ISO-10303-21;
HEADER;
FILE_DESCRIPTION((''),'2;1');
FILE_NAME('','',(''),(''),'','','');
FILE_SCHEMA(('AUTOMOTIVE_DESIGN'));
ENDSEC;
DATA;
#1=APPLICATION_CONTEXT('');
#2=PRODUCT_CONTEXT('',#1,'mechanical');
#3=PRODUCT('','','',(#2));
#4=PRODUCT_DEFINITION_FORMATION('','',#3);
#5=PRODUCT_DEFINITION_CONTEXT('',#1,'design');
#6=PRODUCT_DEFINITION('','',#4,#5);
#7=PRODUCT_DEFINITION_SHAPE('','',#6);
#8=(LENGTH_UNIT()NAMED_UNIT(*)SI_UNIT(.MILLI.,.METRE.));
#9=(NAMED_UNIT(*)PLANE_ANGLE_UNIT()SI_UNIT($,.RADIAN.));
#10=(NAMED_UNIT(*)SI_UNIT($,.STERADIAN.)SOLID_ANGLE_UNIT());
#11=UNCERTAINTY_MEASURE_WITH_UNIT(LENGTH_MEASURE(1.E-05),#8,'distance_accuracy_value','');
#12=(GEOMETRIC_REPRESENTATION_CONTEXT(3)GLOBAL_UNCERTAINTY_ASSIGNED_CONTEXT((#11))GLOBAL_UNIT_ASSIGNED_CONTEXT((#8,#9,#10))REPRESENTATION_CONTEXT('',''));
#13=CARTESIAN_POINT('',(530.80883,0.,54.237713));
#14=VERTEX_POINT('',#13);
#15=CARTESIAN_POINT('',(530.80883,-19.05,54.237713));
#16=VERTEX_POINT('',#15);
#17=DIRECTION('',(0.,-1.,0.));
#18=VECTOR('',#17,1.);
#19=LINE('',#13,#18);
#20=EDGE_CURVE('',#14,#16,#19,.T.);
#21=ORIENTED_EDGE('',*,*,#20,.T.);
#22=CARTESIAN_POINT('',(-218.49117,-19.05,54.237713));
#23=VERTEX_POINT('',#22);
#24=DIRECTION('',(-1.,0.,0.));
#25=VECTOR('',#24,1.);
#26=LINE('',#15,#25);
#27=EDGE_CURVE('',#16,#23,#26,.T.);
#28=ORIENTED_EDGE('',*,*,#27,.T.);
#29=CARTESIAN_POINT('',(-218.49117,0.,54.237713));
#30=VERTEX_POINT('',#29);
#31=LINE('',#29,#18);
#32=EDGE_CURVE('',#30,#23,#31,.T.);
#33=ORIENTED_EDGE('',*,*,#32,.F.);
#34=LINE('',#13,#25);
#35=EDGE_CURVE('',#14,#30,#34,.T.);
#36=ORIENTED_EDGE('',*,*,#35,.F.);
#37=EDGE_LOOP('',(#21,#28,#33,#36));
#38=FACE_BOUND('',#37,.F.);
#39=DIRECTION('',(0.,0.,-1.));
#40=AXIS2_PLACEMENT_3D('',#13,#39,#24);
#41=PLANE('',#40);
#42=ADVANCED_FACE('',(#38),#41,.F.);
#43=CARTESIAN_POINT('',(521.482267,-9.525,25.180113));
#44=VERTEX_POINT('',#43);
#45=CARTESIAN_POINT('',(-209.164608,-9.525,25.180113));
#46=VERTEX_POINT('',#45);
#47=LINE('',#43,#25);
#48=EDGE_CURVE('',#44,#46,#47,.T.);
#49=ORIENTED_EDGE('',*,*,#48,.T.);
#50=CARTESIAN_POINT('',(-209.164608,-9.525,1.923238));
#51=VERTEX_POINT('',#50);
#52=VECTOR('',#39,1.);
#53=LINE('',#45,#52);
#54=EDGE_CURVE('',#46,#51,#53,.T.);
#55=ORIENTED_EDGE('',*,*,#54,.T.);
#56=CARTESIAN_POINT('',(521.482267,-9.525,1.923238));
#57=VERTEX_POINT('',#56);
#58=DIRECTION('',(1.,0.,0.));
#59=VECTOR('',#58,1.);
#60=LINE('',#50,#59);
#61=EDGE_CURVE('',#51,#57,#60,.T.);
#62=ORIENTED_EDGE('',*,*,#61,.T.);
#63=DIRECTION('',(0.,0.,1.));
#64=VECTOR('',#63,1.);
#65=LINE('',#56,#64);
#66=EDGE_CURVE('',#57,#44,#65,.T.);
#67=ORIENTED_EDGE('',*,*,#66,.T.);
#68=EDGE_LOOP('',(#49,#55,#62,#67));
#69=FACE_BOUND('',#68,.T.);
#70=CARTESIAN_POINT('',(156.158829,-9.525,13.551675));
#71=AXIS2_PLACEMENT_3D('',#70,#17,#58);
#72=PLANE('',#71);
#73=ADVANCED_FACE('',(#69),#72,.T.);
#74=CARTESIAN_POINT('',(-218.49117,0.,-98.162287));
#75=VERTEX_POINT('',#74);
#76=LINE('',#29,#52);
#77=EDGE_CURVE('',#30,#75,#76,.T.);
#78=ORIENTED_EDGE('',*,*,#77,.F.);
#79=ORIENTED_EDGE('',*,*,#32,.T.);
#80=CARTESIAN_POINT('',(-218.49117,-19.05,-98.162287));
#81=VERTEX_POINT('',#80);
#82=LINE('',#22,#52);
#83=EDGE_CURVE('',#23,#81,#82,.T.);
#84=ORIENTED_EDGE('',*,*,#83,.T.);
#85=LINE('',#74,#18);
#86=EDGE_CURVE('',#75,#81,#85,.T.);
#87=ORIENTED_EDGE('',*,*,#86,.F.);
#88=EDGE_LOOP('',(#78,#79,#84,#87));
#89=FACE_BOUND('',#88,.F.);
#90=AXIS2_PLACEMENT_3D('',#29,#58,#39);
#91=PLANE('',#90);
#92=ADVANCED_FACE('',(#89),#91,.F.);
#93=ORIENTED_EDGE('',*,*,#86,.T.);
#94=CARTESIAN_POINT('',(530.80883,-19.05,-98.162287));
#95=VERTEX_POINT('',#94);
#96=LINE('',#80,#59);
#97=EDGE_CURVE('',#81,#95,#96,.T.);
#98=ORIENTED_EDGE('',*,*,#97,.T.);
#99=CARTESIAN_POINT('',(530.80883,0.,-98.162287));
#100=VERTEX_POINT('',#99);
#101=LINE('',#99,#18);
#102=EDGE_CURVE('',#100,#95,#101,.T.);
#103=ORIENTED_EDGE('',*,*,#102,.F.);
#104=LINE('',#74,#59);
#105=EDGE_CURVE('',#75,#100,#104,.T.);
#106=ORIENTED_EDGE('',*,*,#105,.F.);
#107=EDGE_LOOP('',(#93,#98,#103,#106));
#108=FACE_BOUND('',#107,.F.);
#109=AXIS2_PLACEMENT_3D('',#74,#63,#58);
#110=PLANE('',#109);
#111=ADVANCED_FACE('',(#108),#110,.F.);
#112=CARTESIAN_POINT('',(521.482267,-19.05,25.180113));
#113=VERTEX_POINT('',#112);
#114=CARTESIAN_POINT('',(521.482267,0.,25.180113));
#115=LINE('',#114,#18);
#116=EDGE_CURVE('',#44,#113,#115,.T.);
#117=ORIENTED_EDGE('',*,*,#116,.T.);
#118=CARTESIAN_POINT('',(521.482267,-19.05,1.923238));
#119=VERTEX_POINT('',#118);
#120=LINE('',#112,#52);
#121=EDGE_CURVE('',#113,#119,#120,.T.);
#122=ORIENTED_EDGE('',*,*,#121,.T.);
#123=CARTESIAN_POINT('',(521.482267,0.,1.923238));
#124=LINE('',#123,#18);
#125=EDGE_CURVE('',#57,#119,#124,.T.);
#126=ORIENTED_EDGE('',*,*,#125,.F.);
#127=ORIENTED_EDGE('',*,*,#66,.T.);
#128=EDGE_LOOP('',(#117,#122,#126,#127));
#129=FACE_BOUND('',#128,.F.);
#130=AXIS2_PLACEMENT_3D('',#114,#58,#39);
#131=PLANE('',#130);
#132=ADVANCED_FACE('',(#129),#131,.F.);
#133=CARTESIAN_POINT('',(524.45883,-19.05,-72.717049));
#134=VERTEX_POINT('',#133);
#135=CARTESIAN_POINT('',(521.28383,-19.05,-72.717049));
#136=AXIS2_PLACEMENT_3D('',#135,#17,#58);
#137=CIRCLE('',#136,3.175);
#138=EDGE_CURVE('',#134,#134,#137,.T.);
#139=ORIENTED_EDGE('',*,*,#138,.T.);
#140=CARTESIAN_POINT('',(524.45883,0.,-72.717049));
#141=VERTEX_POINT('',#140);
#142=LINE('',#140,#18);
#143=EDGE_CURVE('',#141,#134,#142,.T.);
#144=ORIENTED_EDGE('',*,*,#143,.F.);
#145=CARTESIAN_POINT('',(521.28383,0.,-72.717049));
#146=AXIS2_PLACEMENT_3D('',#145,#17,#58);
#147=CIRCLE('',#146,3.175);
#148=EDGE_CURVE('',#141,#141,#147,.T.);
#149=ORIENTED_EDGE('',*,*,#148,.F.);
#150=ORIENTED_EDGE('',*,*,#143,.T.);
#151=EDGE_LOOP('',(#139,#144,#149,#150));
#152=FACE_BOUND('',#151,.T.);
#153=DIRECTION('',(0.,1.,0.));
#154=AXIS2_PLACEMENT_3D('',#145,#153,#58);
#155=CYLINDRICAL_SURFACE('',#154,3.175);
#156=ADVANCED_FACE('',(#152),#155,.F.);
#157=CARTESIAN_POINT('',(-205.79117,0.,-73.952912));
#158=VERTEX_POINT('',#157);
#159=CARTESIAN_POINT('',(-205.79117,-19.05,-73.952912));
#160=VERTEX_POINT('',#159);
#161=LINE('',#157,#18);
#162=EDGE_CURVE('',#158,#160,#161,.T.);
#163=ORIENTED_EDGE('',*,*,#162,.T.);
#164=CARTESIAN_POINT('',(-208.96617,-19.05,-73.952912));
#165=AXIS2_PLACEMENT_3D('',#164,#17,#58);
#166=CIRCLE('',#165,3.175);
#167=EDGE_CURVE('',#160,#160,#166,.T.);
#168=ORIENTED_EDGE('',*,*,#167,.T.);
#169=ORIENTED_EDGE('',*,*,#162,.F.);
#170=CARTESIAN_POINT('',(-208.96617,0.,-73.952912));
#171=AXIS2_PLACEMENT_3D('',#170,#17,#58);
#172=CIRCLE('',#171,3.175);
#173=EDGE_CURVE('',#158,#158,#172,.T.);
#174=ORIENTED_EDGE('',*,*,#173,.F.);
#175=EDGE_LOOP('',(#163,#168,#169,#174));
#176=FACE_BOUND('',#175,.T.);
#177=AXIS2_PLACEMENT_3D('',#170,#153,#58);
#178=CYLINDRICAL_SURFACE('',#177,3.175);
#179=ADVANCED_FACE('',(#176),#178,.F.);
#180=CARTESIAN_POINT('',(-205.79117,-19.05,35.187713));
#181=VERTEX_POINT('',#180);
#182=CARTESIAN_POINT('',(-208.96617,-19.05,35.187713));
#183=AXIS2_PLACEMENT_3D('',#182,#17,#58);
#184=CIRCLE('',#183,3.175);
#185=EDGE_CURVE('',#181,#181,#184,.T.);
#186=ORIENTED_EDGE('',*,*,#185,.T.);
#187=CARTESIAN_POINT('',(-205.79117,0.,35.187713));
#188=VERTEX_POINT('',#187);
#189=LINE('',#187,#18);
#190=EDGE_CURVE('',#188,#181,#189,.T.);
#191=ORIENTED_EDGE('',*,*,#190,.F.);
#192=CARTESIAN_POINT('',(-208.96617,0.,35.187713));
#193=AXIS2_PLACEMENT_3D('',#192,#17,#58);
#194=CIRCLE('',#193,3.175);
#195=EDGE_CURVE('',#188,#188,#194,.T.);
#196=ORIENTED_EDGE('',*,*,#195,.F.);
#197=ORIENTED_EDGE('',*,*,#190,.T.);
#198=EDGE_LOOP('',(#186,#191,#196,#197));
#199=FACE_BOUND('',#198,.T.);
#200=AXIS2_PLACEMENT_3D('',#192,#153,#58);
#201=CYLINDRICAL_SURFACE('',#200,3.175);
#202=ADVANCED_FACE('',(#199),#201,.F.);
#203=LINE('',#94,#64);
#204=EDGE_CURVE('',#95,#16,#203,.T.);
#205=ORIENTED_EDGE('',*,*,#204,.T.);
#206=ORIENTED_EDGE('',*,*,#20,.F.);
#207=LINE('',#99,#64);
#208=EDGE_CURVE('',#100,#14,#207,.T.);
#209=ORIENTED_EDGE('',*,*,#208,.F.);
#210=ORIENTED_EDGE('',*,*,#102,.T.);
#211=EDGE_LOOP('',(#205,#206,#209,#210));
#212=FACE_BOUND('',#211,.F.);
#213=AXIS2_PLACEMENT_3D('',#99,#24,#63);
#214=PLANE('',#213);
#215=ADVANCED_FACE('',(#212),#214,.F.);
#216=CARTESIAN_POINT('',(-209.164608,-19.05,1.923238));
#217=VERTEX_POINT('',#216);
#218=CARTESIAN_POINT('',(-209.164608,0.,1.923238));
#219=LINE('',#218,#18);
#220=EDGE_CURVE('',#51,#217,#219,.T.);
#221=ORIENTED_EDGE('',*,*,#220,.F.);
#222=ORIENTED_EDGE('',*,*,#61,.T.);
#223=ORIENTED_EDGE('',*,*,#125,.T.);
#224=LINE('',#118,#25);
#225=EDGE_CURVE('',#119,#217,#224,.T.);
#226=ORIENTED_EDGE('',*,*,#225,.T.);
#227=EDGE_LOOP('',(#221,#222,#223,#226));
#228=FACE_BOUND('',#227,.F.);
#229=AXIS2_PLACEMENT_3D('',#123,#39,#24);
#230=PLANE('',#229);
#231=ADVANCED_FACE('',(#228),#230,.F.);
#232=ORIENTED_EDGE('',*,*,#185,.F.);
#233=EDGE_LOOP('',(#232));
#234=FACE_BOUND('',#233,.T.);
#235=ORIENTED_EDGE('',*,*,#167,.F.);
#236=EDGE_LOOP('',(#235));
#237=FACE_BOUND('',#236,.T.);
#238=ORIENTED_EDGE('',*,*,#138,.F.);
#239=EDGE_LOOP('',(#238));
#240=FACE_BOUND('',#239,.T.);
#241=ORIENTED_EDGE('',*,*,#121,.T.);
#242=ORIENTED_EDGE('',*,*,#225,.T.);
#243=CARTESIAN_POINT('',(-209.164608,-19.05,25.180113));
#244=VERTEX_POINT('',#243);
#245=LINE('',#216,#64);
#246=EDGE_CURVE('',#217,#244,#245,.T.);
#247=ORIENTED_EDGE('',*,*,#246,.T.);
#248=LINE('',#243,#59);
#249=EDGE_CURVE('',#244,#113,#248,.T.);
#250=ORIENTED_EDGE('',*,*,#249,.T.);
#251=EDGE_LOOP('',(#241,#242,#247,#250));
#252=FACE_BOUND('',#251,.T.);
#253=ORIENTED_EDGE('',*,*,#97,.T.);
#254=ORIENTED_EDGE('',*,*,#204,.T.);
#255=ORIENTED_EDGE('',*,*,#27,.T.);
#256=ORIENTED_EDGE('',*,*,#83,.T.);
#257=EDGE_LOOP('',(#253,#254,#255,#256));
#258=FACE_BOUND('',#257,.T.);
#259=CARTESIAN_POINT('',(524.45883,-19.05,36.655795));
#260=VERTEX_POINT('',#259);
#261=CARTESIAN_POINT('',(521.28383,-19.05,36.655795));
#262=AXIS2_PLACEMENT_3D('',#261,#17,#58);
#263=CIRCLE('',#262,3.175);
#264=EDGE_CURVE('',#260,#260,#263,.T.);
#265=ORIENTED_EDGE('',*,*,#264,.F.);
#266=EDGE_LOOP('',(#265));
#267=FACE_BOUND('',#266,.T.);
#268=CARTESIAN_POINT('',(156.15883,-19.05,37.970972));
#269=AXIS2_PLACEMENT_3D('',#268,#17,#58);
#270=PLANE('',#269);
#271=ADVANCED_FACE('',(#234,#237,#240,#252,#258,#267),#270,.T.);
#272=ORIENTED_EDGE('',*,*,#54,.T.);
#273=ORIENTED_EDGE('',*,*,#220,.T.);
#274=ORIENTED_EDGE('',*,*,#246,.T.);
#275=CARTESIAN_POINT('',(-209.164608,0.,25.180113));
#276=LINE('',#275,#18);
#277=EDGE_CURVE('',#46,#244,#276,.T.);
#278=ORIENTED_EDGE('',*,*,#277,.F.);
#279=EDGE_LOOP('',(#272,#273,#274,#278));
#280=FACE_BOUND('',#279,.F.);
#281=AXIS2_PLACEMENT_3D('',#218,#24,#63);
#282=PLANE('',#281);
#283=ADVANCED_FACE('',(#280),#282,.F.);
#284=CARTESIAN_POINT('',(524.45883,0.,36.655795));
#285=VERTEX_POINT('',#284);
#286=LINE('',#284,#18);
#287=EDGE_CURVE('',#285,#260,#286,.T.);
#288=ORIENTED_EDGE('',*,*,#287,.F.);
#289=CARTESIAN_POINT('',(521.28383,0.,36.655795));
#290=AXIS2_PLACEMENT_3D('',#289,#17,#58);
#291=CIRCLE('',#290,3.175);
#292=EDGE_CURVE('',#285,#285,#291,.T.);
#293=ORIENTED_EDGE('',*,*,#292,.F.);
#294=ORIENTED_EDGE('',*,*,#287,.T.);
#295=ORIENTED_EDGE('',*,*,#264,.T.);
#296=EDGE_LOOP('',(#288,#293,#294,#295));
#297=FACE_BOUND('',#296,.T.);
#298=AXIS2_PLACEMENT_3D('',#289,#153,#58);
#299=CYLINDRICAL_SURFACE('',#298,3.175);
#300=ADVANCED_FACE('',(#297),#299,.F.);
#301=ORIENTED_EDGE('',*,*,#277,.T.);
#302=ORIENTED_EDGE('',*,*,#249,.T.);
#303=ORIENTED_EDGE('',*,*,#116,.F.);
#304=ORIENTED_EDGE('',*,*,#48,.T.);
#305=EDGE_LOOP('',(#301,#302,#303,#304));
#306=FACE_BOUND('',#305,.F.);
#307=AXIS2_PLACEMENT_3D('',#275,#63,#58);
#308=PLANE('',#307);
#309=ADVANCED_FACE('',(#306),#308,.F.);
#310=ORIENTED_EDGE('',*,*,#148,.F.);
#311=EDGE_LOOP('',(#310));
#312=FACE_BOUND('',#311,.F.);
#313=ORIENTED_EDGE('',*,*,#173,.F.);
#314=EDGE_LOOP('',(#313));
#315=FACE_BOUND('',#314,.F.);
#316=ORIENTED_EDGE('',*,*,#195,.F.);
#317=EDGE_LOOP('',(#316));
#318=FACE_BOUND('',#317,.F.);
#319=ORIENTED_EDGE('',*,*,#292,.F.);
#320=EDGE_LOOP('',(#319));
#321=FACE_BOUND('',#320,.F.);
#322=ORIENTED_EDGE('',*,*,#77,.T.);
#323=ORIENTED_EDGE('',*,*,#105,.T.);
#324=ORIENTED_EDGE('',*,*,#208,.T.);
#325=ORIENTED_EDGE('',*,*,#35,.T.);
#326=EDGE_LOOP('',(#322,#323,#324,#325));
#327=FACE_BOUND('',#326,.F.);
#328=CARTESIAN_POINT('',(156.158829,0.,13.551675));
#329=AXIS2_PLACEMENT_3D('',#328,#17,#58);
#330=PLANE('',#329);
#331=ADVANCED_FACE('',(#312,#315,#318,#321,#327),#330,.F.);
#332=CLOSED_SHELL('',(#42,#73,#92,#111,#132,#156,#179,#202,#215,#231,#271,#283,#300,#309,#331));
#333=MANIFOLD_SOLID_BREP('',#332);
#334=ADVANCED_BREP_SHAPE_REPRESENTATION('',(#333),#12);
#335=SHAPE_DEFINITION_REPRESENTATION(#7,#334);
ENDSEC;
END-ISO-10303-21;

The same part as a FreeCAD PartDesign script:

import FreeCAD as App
import Part
import Sketcher

V = App.Vector
Q = App.Units.Quantity


def add_polygon(sketch, points):
    """Adds a closed chain of lines whose ends are joined by coincident constraints."""
    first, n = sketch.GeometryCount, len(points)
    for a, b in zip(points, points[1:] + points[:1]):
        sketch.addGeometry(Part.LineSegment(App.Vector(*a, 0), App.Vector(*b, 0)), False)
    for i in range(n):
        sketch.addConstraint(Sketcher.Constraint("Coincident", first + i, 2, first + (i + 1) % n, 1))

doc = App.newDocument("Part")
body = doc.addObject("PartDesign::Body", "Body")

# Sketch on XZ plane
sketch1 = doc.addObject("Sketcher::SketchObject", "Sketch")
body.addObject(sketch1)
sketch1.AttachmentSupport = (doc.XZ_Plane, [""])
sketch1.MapMode = "FlatFace"
add_polygon(sketch1, [(-218.5, 54.2), (-218.5, -98.2), (530.8, -98.2), (530.8, 54.2)])  # lines 0-3
sketch1.addGeometry(Part.Circle(V(-209, -74, 0), V(0, 0, 1), 3.2), False)  # 4
sketch1.addGeometry(Part.Circle(V(521.3, -72.7, 0), V(0, 0, 1), 3.2), False)  # 5
sketch1.addGeometry(Part.Circle(V(-209, 35.2, 0), V(0, 0, 1), 3.2), False)  # 6
add_polygon(sketch1, [(-209.2, 1.9), (-209.2, 25.2), (521.5, 25.2), (521.5, 1.9)])  # lines 7-10
sketch1.addGeometry(Part.Circle(V(521.3, 36.7, 0), V(0, 0, 1), 3.2), False)  # 11
sketch1.addConstraint([
    Sketcher.Constraint("Vertical", 0),
    Sketcher.Constraint("Horizontal", 1),
    Sketcher.Constraint("Vertical", 2),
    Sketcher.Constraint("Horizontal", 3),
    Sketcher.Constraint("Vertical", 7),
    Sketcher.Constraint("Horizontal", 8),
    Sketcher.Constraint("Vertical", 9),
    Sketcher.Constraint("Horizontal", 10),
    Sketcher.Constraint("Equal", 4, 5),
    Sketcher.Constraint("Equal", 5, 6),
    Sketcher.Constraint("Equal", 6, 11),
    Sketcher.Constraint("Vertical", 4, 3, 6, 3),
    Sketcher.Constraint("Vertical", 5, 3, 11, 3),
    Sketcher.Constraint("Diameter", 4, Q("0.25 in")),
    Sketcher.Constraint("DistanceY", 0, 2, 0, 1, Q("6 in")),
    Sketcher.Constraint("DistanceX", 1, 1, 1, 2, Q("29.5 in")),
    Sketcher.Constraint("DistanceX", 8, 1, 8, 2, Q("28.765625 in")),
    Sketcher.Constraint("DistanceX", 4, 3, 5, 3, Q("28.75 in")),
    Sketcher.Constraint("DistanceY", 0, 2, 6, 3, Q("5.25 in")),
    Sketcher.Constraint("DistanceY", 4, 3, 6, 3, Q("4.296875 in")),
    Sketcher.Constraint("DistanceX", 0, 2, 4, 3, Q("0.375 in")),
    Sketcher.Constraint("DistanceY", 7, 2, 6, 3, Q("0.394 in")),
    Sketcher.Constraint("DistanceY", 7, 1, 7, 2, 23.256875),
    Sketcher.Constraint("DistanceX", 4, 3, -1, 1, 208.96617),
    Sketcher.Constraint("DistanceY", 4, 3, -1, 1, 73.952912),
    Sketcher.Constraint("DistanceY", 5, 3, -1, 1, 72.717049),
    Sketcher.Constraint("DistanceY", 6, 3, 11, 3, 1.468082),
    Sketcher.Constraint("DistanceX", 7, 2, -1, 1, 209.164608),
])
pad1 = doc.addObject("PartDesign::Pad", "Pad")
body.addObject(pad1)
pad1.Profile = sketch1
pad1.Length = Q("0.75 in")

# Sketch on XZ plane
sketch2 = doc.addObject("Sketcher::SketchObject", "Sketch001")
body.addObject(sketch2)
sketch2.AttachmentSupport = (doc.XZ_Plane, [""])
sketch2.MapMode = "FlatFace"
add_polygon(sketch2, [(-209, 2), (521, 2), (521, 25), (-209, 25)])  # lines 0-3
sketch2.addConstraint([
    Sketcher.Constraint("Horizontal", 0),
    Sketcher.Constraint("Vertical", 1),
    Sketcher.Constraint("Horizontal", 2),
    Sketcher.Constraint("Vertical", 3),
    Sketcher.Constraint("DistanceX", 0, 1, 0, 2, Q("28.765625 in")),
    Sketcher.Constraint("DistanceY", 1, 1, 1, 2, 23.256875),
    Sketcher.Constraint("DistanceX", -1, 1, 0, 2, 521.482267),
    Sketcher.Constraint("DistanceY", -1, 1, 0, 2, 1.923238),
])
pad2 = doc.addObject("PartDesign::Pad", "Pad001")
body.addObject(pad2)
pad2.Profile = sketch2
pad2.Length = Q("0.375 in")

doc.recompute()
